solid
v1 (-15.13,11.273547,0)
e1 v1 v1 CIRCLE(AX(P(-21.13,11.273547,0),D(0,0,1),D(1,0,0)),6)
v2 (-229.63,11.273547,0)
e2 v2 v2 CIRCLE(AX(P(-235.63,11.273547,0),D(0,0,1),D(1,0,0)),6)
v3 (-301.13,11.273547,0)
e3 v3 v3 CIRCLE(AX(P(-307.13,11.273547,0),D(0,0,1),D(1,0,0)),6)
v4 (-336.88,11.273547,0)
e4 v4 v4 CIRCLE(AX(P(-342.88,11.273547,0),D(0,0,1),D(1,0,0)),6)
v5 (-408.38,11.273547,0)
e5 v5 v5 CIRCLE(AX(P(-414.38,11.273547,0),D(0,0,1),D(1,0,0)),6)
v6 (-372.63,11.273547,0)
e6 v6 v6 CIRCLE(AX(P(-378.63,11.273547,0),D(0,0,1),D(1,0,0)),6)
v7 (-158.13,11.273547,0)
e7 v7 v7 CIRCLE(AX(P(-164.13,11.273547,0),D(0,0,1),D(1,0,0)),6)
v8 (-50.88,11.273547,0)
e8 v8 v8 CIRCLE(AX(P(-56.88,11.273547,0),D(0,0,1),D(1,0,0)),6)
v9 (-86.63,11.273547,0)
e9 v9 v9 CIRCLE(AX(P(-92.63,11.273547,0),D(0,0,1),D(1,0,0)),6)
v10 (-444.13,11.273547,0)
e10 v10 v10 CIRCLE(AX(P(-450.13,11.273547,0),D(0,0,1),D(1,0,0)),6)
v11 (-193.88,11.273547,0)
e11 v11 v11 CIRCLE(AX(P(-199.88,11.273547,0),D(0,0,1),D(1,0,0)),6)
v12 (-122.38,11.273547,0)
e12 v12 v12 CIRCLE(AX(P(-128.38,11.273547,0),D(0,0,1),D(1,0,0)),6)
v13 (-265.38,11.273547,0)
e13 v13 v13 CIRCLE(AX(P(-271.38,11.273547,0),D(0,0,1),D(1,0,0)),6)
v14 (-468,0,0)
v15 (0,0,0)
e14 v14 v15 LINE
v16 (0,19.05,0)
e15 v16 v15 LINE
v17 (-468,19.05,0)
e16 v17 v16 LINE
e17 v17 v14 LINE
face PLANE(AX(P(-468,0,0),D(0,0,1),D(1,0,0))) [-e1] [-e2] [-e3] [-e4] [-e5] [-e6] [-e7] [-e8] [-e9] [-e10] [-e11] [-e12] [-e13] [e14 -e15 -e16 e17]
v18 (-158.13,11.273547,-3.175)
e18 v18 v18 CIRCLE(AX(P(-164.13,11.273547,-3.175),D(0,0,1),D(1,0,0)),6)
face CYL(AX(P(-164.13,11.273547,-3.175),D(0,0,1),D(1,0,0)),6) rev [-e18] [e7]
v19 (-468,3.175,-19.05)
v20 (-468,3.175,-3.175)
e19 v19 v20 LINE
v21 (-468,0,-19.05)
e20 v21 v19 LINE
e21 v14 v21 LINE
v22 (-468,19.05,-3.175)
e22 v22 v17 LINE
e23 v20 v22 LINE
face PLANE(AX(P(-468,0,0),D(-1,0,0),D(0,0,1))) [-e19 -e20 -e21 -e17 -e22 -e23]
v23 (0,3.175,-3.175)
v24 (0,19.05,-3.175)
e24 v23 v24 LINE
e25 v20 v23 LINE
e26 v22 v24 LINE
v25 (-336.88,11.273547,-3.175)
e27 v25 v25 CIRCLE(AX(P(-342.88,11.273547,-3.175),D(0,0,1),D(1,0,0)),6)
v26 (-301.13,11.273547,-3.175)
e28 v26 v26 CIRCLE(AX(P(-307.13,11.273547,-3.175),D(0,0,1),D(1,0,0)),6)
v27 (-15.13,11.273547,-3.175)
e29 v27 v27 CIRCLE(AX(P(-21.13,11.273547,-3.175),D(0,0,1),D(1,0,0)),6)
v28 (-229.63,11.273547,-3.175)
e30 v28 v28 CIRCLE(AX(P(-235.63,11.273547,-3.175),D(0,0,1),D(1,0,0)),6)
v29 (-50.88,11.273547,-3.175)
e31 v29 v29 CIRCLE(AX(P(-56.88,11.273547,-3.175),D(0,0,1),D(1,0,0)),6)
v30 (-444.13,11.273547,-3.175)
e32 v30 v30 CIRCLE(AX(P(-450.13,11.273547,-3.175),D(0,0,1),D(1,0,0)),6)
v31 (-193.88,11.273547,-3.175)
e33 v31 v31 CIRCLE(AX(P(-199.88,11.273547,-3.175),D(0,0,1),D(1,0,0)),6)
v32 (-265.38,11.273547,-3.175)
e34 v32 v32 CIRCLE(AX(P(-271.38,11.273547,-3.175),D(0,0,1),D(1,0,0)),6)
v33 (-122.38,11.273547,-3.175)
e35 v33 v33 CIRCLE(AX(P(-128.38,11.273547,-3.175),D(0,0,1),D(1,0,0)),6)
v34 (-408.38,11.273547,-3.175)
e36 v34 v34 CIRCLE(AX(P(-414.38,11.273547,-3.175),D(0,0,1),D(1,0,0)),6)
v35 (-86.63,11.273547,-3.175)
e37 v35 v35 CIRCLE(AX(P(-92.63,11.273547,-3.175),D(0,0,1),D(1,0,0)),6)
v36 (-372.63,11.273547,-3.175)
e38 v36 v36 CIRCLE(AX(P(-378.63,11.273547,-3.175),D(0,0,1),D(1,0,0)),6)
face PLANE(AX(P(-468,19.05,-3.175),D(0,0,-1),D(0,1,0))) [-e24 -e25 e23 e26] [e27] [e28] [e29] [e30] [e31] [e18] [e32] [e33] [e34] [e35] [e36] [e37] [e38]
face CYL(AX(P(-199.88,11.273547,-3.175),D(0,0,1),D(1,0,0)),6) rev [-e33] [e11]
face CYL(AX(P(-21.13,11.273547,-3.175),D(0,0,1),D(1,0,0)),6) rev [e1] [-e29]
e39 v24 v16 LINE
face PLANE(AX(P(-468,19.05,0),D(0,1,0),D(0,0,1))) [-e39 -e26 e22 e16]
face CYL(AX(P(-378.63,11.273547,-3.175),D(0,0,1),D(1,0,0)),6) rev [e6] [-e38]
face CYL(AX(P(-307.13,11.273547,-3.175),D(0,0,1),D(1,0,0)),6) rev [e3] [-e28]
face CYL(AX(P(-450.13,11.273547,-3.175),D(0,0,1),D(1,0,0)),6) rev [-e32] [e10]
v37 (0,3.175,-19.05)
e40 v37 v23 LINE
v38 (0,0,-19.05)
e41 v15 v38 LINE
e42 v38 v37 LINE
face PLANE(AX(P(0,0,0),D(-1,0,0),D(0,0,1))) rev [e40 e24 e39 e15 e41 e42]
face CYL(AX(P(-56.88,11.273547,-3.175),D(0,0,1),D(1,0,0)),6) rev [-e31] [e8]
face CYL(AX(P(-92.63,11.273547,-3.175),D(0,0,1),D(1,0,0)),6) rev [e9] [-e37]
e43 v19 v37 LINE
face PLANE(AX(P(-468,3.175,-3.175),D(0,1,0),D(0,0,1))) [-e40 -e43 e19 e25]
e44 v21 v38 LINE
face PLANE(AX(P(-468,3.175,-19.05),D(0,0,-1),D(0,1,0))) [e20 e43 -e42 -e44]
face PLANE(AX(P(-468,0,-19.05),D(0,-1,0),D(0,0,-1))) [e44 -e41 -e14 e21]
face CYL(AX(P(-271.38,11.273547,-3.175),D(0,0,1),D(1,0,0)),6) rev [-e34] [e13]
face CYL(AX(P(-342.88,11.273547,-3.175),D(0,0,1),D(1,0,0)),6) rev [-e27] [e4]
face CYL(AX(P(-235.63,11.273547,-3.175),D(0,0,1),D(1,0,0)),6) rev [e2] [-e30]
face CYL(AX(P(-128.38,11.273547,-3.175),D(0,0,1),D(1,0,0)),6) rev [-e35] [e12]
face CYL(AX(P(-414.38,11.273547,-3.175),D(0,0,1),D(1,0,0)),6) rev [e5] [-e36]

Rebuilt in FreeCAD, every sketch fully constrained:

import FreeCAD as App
import Part
import Sketcher

V = App.Vector
Q = App.Units.Quantity

doc = App.newDocument("Part")
body = doc.addObject("PartDesign::Body", "Body")

# Sketch on YZ plane
sketch1 = doc.addObject("Sketcher::SketchObject", "Sketch")
body.addObject(sketch1)
sketch1.AttachmentSupport = (doc.YZ_Plane, [""])
sketch1.MapMode = "FlatFace"
sketch1.addGeometry(Part.LineSegment(V(19.1, 0, 0), V(0, 0, 0)), False)
sketch1.addGeometry(Part.LineSegment(V(0, 0, 0), V(0, -19.1, 0)), False)
sketch1.addGeometry(Part.LineSegment(V(0, -19.1, 0), V(3.2, -19.1, 0)), False)
sketch1.addGeometry(Part.LineSegment(V(3.2, -19.1, 0), V(3.2, -3.2, 0)), False)
sketch1.addGeometry(Part.LineSegment(V(3.2, -3.2, 0), V(19.1, -3.2, 0)), False)
sketch1.addGeometry(Part.LineSegment(V(19.1, -3.2, 0), V(19.1, 0, 0)), False)
sketch1.addConstraint(Sketcher.Constraint("Coincident", 0, 2, 1, 1))
sketch1.addConstraint(Sketcher.Constraint("Coincident", 1, 2, 2, 1))
sketch1.addConstraint(Sketcher.Constraint("Coincident", 2, 2, 3, 1))
sketch1.addConstraint(Sketcher.Constraint("Coincident", 3, 2, 4, 1))
sketch1.addConstraint(Sketcher.Constraint("Coincident", 4, 2, 5, 1))
sketch1.addConstraint(Sketcher.Constraint("Coincident", 5, 2, 0, 1))
sketch1.addConstraint(Sketcher.Constraint("Horizontal", 0))
sketch1.addConstraint(Sketcher.Constraint("Vertical", 1))
sketch1.addConstraint(Sketcher.Constraint("Horizontal", 2))
sketch1.addConstraint(Sketcher.Constraint("Vertical", 3))
sketch1.addConstraint(Sketcher.Constraint("Horizontal", 4))
sketch1.addConstraint(Sketcher.Constraint("Vertical", 5))
sketch1.addConstraint(Sketcher.Constraint("Coincident", 0, 2, -1, 1))
sketch1.addConstraint(Sketcher.Constraint("Equal", 0, 1))
sketch1.addConstraint(Sketcher.Constraint("Equal", 4, 3))
sketch1.addConstraint(Sketcher.Constraint("DistanceX", 0, 2, 0, 1, Q("0.75 in")))
sketch1.addConstraint(Sketcher.Constraint("DistanceX", 2, 1, 2, 2, Q("0.125 in")))
pad1 = doc.addObject("PartDesign::Pad", "Pad")
body.addObject(pad1)
pad1.Profile = sketch1
pad1.Length = 468
pad1.Reversed = True

# Sketch on XY plane
sketch2 = doc.addObject("Sketcher::SketchObject", "Sketch001")
body.addObject(sketch2)
sketch2.AttachmentSupport = (doc.XY_Plane, [""])
sketch2.MapMode = "FlatFace"
sketch2.addGeometry(Part.Circle(V(-450, 11, 0), V(0, 0, 1), 6), False)
sketch2.addGeometry(Part.Circle(V(-414, 11, 0), V(0, 0, 1), 6), False)
sketch2.addGeometry(Part.Circle(V(-379, 11, 0), V(0, 0, 1), 6), False)
sketch2.addGeometry(Part.Circle(V(-343, 11, 0), V(0, 0, 1), 6), False)
sketch2.addGeometry(Part.Circle(V(-307, 11, 0), V(0, 0, 1), 6), False)
sketch2.addGeometry(Part.Circle(V(-271, 11, 0), V(0, 0, 1), 6), False)
sketch2.addGeometry(Part.Circle(V(-236, 11, 0), V(0, 0, 1), 6), False)
sketch2.addGeometry(Part.Circle(V(-200, 11, 0), V(0, 0, 1), 6), False)
sketch2.addGeometry(Part.Circle(V(-164, 11, 0), V(0, 0, 1), 6), False)
sketch2.addGeometry(Part.Circle(V(-128, 11, 0), V(0, 0, 1), 6), False)
sketch2.addGeometry(Part.Circle(V(-93, 11, 0), V(0, 0, 1), 6), False)
sketch2.addGeometry(Part.Circle(V(-57, 11, 0), V(0, 0, 1), 6), False)
sketch2.addGeometry(Part.Circle(V(-21, 11, 0), V(0, 0, 1), 6), False)
sketch2.addConstraint(Sketcher.Constraint("Equal", 0, 1))
sketch2.addConstraint(Sketcher.Constraint("Equal", 1, 2))
sketch2.addConstraint(Sketcher.Constraint("Equal", 2, 3))
sketch2.addConstraint(Sketcher.Constraint("Equal", 3, 4))
sketch2.addConstraint(Sketcher.Constraint("Equal", 4, 5))
sketch2.addConstraint(Sketcher.Constraint("Equal", 5, 6))
sketch2.addConstraint(Sketcher.Constraint("Equal", 6, 7))
sketch2.addConstraint(Sketcher.Constraint("Equal", 7, 8))
sketch2.addConstraint(Sketcher.Constraint("Equal", 8, 9))
sketch2.addConstraint(Sketcher.Constraint("Equal", 9, 10))
sketch2.addConstraint(Sketcher.Constraint("Equal", 10, 11))
sketch2.addConstraint(Sketcher.Constraint("Equal", 11, 12))
sketch2.addConstraint(Sketcher.Constraint("Horizontal", 0, 3, 1, 3))
sketch2.addConstraint(Sketcher.Constraint("Horizontal", 1, 3, 2, 3))
sketch2.addConstraint(Sketcher.Constraint("Horizontal", 2, 3, 3, 3))
sketch2.addConstraint(Sketcher.Constraint("Horizontal", 3, 3, 4, 3))
sketch2.addConstraint(Sketcher.Constraint("Horizontal", 4, 3, 5, 3))
sketch2.addConstraint(Sketcher.Constraint("Horizontal", 5, 3, 6, 3))
sketch2.addConstraint(Sketcher.Constraint("Horizontal", 6, 3, 7, 3))
sketch2.addConstraint(Sketcher.Constraint("Horizontal", 7, 3, 8, 3))
sketch2.addConstraint(Sketcher.Constraint("Horizontal", 8, 3, 9, 3))
sketch2.addConstraint(Sketcher.Constraint("Horizontal", 9, 3, 10, 3))
sketch2.addConstraint(Sketcher.Constraint("Horizontal", 10, 3, 11, 3))
sketch2.addConstraint(Sketcher.Constraint("Horizontal", 11, 3, 12, 3))
sketch2.addConstraint(Sketcher.Constraint("Diameter", 0, 12.0))
sketch2.addConstraint(Sketcher.Constraint("DistanceX", 0, 3, -1, 1, 450.13))
sketch2.addConstraint(Sketcher.Constraint("DistanceX", 1, 3, -1, 1, 414.38))
sketch2.addConstraint(Sketcher.Constraint("DistanceX", 2, 3, -1, 1, 378.63))
sketch2.addConstraint(Sketcher.Constraint("DistanceX", 3, 3, -1, 1, 342.88))
sketch2.addConstraint(Sketcher.Constraint("DistanceX", 4, 3, -1, 1, 307.13))
sketch2.addConstraint(Sketcher.Constraint("DistanceX", 5, 3, -1, 1, 271.38))
sketch2.addConstraint(Sketcher.Constraint("DistanceX", 6, 3, -1, 1, 235.63))
sketch2.addConstraint(Sketcher.Constraint("DistanceX", 7, 3, -1, 1, 199.88))
sketch2.addConstraint(Sketcher.Constraint("DistanceX", 8, 3, -1, 1, 164.13))
sketch2.addConstraint(Sketcher.Constraint("DistanceX", 9, 3, -1, 1, 128.38))
sketch2.addConstraint(Sketcher.Constraint("DistanceX", 10, 3, -1, 1, 92.63))
sketch2.addConstraint(Sketcher.Constraint("DistanceX", 11, 3, -1, 1, 56.88))
sketch2.addConstraint(Sketcher.Constraint("DistanceX", 12, 3, -1, 1, 21.13))
sketch2.addConstraint(Sketcher.Constraint("DistanceY", -1, 1, 0, 3, 11.273547))
pocket1 = doc.addObject("PartDesign::Pocket", "Pocket")
body.addObject(pocket1)
pocket1.Profile = sketch2
pocket1.Length = Q("0.125 in")

doc.recompute()
